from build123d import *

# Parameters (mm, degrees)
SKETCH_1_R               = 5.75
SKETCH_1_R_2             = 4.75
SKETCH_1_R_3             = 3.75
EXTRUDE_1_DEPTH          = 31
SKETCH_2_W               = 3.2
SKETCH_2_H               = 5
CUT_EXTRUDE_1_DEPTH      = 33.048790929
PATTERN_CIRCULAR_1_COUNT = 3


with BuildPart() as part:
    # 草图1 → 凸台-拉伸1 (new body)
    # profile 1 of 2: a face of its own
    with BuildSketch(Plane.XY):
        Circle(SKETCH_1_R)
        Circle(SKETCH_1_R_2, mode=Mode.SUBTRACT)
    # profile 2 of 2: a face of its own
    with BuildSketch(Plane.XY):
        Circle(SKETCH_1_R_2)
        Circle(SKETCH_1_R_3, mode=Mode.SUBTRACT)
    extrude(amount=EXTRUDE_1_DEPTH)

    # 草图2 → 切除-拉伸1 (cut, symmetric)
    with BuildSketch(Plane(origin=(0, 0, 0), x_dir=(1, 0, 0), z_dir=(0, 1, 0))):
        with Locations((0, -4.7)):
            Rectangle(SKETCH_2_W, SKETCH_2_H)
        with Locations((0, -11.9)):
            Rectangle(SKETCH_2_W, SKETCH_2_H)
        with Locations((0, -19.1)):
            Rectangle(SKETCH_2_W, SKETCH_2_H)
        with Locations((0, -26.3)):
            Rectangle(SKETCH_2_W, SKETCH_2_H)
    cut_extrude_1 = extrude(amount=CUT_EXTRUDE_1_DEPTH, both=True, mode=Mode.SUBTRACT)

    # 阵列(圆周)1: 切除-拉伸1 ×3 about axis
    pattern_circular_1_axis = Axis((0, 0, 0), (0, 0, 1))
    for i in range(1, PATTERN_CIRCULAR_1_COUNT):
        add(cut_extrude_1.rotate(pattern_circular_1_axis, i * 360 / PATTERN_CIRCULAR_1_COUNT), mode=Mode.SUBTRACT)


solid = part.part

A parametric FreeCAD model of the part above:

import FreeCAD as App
import Part
import Sketcher

V = App.Vector

doc = App.newDocument("Part")
body = doc.addObject("PartDesign::Body", "Body")

sketch1 = body.newObject("Sketcher::SketchObject", "Sketch")
sketch1.AttachmentSupport = (doc.getObject("XY_Plane"), [""])
sketch1.MapMode = "FlatFace"
sketch1.addGeometry(Part.Circle(V(0, 0, 0), V(0, 0, 1), 5.8), False)
sketch1.addGeometry(Part.Circle(V(0, 0, 0), V(0, 0, 1), 3.8), False)
sketch1.addConstraint(Sketcher.Constraint("Coincident", 0, 3, -1, 1))
sketch1.addConstraint(Sketcher.Constraint("Coincident", 1, 3, -1, 1))
sketch1.addConstraint(Sketcher.Constraint("Diameter", 0, 11.5))
sketch1.addConstraint(Sketcher.Constraint("Diameter", 1, 7.5))
pad1 = body.newObject("PartDesign::Pad", "Pad")
pad1.Profile = sketch1
pad1.Length = 31

sketch2 = body.newObject("Sketcher::SketchObject", "Sketch001")
sketch2.AttachmentSupport = (doc.getObject("XZ_Plane"), [""])
sketch2.MapMode = "FlatFace"
sketch2.addGeometry(Part.LineSegment(V(-1.6, 2.2, 0), V(-1.6, 7.2, 0)), False)
sketch2.addGeometry(Part.LineSegment(V(-1.6, 7.2, 0), V(1.6, 7.2, 0)), False)
sketch2.addGeometry(Part.LineSegment(V(1.6, 7.2, 0), V(1.6, 2.2, 0)), False)
sketch2.addGeometry(Part.LineSegment(V(1.6, 2.2, 0), V(-1.6, 2.2, 0)), False)
sketch2.addGeometry(Part.LineSegment(V(-1.6, 9.4, 0), V(-1.6, 14.4, 0)), False)
sketch2.addGeometry(Part.LineSegment(V(-1.6, 14.4, 0), V(1.6, 14.4, 0)), False)
sketch2.addGeometry(Part.LineSegment(V(1.6, 14.4, 0), V(1.6, 9.4, 0)), False)
sketch2.addGeometry(Part.LineSegment(V(1.6, 9.4, 0), V(-1.6, 9.4, 0)), False)
sketch2.addGeometry(Part.LineSegment(V(-1.6, 16.6, 0), V(-1.6, 21.6, 0)), False)
sketch2.addGeometry(Part.LineSegment(V(-1.6, 21.6, 0), V(1.6, 21.6, 0)), False)
sketch2.addGeometry(Part.LineSegment(V(1.6, 21.6, 0), V(1.6, 16.6, 0)), False)
sketch2.addGeometry(Part.LineSegment(V(1.6, 16.6, 0), V(-1.6, 16.6, 0)), False)
sketch2.addGeometry(Part.LineSegment(V(-1.6, 23.8, 0), V(-1.6, 28.8, 0)), False)
sketch2.addGeometry(Part.LineSegment(V(-1.6, 28.8, 0), V(1.6, 28.8, 0)), False)
sketch2.addGeometry(Part.LineSegment(V(1.6, 28.8, 0), V(1.6, 23.8, 0)), False)
sketch2.addGeometry(Part.LineSegment(V(1.6, 23.8, 0), V(-1.6, 23.8, 0)), False)
sketch2.addConstraint(Sketcher.Constraint("Coincident", 0, 2, 1, 1))
sketch2.addConstraint(Sketcher.Constraint("Coincident", 1, 2, 2, 1))
sketch2.addConstraint(Sketcher.Constraint("Coincident", 2, 2, 3, 1))
sketch2.addConstraint(Sketcher.Constraint("Coincident", 3, 2, 0, 1))
sketch2.addConstraint(Sketcher.Constraint("Coincident", 4, 2, 5, 1))
sketch2.addConstraint(Sketcher.Constraint("Coincident", 5, 2, 6, 1))
sketch2.addConstraint(Sketcher.Constraint("Coincident", 6, 2, 7, 1))
sketch2.addConstraint(Sketcher.Constraint("Coincident", 7, 2, 4, 1))
sketch2.addConstraint(Sketcher.Constraint("Coincident", 8, 2, 9, 1))
sketch2.addConstraint(Sketcher.Constraint("Coincident", 9, 2, 10, 1))
sketch2.addConstraint(Sketcher.Constraint("Coincident", 10, 2, 11, 1))
sketch2.addConstraint(Sketcher.Constraint("Coincident", 11, 2, 8, 1))
sketch2.addConstraint(Sketcher.Constraint("Coincident", 12, 2, 13, 1))
sketch2.addConstraint(Sketcher.Constraint("Coincident", 13, 2, 14, 1))
sketch2.addConstraint(Sketcher.Constraint("Coincident", 14, 2, 15, 1))
sketch2.addConstraint(Sketcher.Constraint("Coincident", 15, 2, 12, 1))
sketch2.addConstraint(Sketcher.Constraint("Vertical", 0))
sketch2.addConstraint(Sketcher.Constraint("Horizontal", 1))
sketch2.addConstraint(Sketcher.Constraint("Vertical", 2))
sketch2.addConstraint(Sketcher.Constraint("Horizontal", 3))
sketch2.addConstraint(Sketcher.Constraint("Vertical", 4))
sketch2.addConstraint(Sketcher.Constraint("Horizontal", 5))
sketch2.addConstraint(Sketcher.Constraint("Vertical", 6))
sketch2.addConstraint(Sketcher.Constraint("Horizontal", 7))
sketch2.addConstraint(Sketcher.Constraint("Vertical", 8))
sketch2.addConstraint(Sketcher.Constraint("Horizontal", 9))
sketch2.addConstraint(Sketcher.Constraint("Vertical", 10))
sketch2.addConstraint(Sketcher.Constraint("Horizontal", 11))
sketch2.addConstraint(Sketcher.Constraint("Vertical", 12))
sketch2.addConstraint(Sketcher.Constraint("Horizontal", 13))
sketch2.addConstraint(Sketcher.Constraint("Vertical", 14))
sketch2.addConstraint(Sketcher.Constraint("Horizontal", 15))
sketch2.addConstraint(Sketcher.Constraint("Vertical", 3, 2, 4, 2))
sketch2.addConstraint(Sketcher.Constraint("Vertical", 2, 2, 5, 2))
sketch2.addConstraint(Sketcher.Constraint("Vertical", 7, 2, 8, 2))
sketch2.addConstraint(Sketcher.Constraint("Vertical", 6, 2, 9, 2))
sketch2.addConstraint(Sketcher.Constraint("Vertical", 11, 2, 12, 2))
sketch2.addConstraint(Sketcher.Constraint("Vertical", 10, 2, 13, 2))
sketch2.addConstraint(Sketcher.Constraint("Equal", 2, 4))
sketch2.addConstraint(Sketcher.Constraint("Equal", 6, 8))
sketch2.addConstraint(Sketcher.Constraint("Equal", 10, 12))
sketch2.addConstraint(Sketcher.Constraint("DistanceY", 0, 1, 0, 2, 5.0))
sketch2.addConstraint(Sketcher.Constraint("DistanceX", 1, 1, 1, 2, 3.2))
sketch2.addConstraint(Sketcher.Constraint("DistanceX", 0, 2, -1, 1, 1.6))
sketch2.addConstraint(Sketcher.Constraint("DistanceY", -1, 1, 0, 2, 7.2))
sketch2.addConstraint(Sketcher.Constraint("DistanceY", -1, 1, 4, 2, 14.4))
sketch2.addConstraint(Sketcher.Constraint("DistanceY", -1, 1, 8, 2, 21.6))
sketch2.addConstraint(Sketcher.Constraint("DistanceY", -1, 1, 12, 2, 28.8))
pocket1 = body.newObject("PartDesign::Pocket", "Pocket")
pocket1.Profile = sketch2
pocket1.Length = 66.097582
pocket1.Midplane = True
doc.recompute()

polarpattern = body.newObject("PartDesign::PolarPattern", "PolarPattern")
polarpattern.Originals = [pocket1]
polarpattern.Axis = (doc.getObject("Z_Axis"), [""])
polarpattern.Angle = 360
polarpattern.Occurrences = 3
body.Tip = polarpattern

doc.recompute()
